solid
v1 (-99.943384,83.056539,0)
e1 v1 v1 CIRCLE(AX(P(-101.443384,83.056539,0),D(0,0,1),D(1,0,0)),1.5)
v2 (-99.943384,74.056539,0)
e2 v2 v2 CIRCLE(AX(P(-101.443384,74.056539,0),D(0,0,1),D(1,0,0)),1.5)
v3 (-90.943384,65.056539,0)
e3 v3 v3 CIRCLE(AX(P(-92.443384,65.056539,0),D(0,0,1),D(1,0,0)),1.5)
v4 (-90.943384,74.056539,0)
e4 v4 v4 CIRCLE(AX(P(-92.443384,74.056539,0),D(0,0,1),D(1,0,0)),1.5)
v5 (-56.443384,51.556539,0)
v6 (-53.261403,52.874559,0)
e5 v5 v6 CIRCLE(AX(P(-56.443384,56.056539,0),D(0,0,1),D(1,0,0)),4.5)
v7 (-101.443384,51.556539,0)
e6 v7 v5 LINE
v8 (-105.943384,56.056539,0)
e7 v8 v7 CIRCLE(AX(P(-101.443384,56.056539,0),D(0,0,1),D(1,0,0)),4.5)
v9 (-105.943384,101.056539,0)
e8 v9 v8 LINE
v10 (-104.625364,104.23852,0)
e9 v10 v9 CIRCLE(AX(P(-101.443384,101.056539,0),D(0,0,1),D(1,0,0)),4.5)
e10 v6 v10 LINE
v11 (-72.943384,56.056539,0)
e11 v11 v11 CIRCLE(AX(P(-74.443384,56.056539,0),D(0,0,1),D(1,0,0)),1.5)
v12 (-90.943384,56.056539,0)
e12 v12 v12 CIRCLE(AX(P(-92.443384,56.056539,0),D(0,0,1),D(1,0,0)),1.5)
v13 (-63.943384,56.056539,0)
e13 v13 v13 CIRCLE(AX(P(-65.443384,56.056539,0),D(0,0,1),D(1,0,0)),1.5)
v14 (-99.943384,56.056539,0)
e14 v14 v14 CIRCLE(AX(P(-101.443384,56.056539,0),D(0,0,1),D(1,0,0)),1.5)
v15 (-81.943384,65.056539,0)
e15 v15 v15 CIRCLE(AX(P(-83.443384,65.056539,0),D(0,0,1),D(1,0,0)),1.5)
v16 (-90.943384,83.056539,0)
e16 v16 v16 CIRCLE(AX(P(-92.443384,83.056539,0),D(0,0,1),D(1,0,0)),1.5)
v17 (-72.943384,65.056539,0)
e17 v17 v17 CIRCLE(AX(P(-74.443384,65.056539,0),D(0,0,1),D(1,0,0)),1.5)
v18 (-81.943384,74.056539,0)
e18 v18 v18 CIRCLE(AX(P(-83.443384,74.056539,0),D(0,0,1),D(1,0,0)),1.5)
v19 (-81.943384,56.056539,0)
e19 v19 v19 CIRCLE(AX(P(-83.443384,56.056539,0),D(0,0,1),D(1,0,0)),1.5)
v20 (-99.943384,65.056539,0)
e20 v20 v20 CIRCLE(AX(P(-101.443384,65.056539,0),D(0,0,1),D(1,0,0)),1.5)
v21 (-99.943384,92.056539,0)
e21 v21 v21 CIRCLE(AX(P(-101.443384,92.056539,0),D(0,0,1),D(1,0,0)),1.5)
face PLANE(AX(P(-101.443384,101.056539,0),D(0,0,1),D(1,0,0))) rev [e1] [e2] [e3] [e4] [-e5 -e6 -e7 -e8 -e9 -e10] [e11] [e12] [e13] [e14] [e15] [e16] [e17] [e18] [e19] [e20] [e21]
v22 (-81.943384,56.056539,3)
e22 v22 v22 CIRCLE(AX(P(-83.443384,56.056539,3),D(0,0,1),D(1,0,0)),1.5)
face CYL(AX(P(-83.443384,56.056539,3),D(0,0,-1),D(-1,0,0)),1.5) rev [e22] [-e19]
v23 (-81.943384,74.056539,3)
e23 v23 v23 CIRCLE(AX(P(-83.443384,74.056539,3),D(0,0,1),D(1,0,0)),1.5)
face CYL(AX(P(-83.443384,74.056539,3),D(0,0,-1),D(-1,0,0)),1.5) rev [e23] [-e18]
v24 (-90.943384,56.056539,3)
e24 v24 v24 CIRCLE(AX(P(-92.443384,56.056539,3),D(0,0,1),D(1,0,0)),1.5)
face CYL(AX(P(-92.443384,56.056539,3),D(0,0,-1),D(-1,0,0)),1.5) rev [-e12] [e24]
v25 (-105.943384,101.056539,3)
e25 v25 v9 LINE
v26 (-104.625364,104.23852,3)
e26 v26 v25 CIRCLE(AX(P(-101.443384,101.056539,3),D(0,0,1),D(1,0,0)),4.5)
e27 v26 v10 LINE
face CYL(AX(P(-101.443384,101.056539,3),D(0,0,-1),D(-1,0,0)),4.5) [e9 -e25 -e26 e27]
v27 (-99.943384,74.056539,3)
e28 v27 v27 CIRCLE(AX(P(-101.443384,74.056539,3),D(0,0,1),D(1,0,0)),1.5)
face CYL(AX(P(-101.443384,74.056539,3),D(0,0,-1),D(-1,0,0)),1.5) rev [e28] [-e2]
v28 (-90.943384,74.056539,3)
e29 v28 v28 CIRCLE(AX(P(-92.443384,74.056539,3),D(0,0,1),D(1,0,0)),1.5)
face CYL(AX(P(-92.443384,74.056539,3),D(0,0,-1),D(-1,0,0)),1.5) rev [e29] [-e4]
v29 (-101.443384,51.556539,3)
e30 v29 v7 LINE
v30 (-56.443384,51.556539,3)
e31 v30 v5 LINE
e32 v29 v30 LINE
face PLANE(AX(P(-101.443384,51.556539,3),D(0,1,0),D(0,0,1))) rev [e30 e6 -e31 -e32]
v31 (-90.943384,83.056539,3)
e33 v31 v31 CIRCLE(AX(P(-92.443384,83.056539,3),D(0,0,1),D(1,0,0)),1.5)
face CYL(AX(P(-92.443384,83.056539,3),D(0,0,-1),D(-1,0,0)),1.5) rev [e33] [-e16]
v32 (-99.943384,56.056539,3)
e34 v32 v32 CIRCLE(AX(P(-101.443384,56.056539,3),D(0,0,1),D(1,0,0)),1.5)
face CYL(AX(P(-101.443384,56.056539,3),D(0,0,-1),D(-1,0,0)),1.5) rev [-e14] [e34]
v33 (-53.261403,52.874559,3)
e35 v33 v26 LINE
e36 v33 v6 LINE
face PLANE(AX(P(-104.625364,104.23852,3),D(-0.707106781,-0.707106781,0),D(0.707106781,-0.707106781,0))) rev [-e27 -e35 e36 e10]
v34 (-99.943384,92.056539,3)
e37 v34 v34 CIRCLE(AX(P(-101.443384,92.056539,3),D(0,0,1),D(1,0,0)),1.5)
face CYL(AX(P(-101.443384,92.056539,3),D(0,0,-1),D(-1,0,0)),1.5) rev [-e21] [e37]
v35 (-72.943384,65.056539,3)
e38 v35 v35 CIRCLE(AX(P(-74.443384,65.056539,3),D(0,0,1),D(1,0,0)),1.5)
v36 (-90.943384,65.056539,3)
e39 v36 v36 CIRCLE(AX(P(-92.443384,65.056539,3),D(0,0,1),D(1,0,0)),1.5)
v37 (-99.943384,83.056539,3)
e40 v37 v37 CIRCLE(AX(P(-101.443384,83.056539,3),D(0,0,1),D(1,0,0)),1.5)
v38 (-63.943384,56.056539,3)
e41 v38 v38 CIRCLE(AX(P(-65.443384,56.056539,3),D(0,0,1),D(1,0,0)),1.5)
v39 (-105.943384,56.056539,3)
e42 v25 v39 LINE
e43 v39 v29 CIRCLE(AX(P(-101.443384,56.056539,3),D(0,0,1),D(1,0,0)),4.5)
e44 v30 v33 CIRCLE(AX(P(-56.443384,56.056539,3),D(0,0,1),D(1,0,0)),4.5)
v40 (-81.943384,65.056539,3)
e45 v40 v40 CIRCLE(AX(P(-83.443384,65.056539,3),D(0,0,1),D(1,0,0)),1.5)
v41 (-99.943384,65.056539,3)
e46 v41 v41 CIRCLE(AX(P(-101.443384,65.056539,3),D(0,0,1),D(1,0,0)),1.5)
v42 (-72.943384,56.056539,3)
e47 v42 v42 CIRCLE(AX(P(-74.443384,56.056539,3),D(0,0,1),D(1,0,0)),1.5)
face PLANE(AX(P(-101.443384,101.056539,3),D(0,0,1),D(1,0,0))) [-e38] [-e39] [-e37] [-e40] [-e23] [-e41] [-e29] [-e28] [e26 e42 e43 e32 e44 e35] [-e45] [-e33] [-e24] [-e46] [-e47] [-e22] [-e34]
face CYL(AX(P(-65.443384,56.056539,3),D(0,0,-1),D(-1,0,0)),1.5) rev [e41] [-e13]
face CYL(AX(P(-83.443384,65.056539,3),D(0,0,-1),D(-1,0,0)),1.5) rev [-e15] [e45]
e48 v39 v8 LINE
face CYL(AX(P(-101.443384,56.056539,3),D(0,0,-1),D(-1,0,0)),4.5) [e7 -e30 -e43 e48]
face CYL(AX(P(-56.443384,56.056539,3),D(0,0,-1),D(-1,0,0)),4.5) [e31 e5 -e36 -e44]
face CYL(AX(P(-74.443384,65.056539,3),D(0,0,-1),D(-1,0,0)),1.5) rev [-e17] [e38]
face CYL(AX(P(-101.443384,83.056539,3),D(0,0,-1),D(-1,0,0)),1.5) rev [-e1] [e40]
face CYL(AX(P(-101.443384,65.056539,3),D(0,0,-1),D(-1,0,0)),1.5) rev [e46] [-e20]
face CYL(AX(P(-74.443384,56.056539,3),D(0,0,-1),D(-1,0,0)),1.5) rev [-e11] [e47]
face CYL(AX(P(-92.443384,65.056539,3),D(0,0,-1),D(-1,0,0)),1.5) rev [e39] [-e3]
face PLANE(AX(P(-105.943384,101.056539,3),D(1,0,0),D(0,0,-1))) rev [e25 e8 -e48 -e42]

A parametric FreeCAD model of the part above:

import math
import FreeCAD as App
import Part
import Sketcher

V = App.Vector
Q = App.Units.Quantity

doc = App.newDocument("Part")
body = doc.addObject("PartDesign::Body", "Body")

sketch1 = body.newObject("Sketcher::SketchObject", "Sketch")
sketch1.AttachmentSupport = (doc.getObject("XY_Plane"), [""])
sketch1.MapMode = "FlatFace"
sketch1.addGeometry(Part.LineSegment(V(-105.9, 101.1, 0), V(-105.9, 56.1, 0)), False)
sketch1.addGeometry(Part.ArcOfCircle(Part.Circle(V(-101.4, 56.1, 0), V(0, 0, 1), 4.5), math.radians(-180), math.radians(-90)), False)
sketch1.addGeometry(Part.LineSegment(V(-101.4, 51.6, 0), V(-56.4, 51.6, 0)), False)
sketch1.addGeometry(Part.ArcOfCircle(Part.Circle(V(-56.4, 56.1, 0), V(0, 0, 1), 4.5), math.radians(-90), math.radians(-45)), False)
sketch1.addGeometry(Part.LineSegment(V(-53.3, 52.9, 0), V(-104.6, 104.2, 0)), False)
sketch1.addGeometry(Part.ArcOfCircle(Part.Circle(V(-101.4, 101.1, 0), V(0, 0, 1), 4.5), math.radians(135), math.radians(180)), False)
sketch1.addGeometry(Part.Circle(V(-101.4, 56.1, 0), V(0, 0, 1), 1.5), False)
sketch1.addGeometry(Part.Circle(V(-92.4, 56.1, 0), V(0, 0, 1), 1.5), False)
sketch1.addGeometry(Part.Circle(V(-101.4, 65.1, 0), V(0, 0, 1), 1.5), False)
sketch1.addGeometry(Part.Circle(V(-101.4, 74.1, 0), V(0, 0, 1), 1.5), False)
sketch1.addGeometry(Part.Circle(V(-92.4, 65.1, 0), V(0, 0, 1), 1.5), False)
sketch1.addGeometry(Part.Circle(V(-92.4, 74.1, 0), V(0, 0, 1), 1.5), False)
sketch1.addGeometry(Part.Circle(V(-83.4, 56.1, 0), V(0, 0, 1), 1.5), False)
sketch1.addGeometry(Part.Circle(V(-74.4, 56.1, 0), V(0, 0, 1), 1.5), False)
sketch1.addGeometry(Part.Circle(V(-65.4, 56.1, 0), V(0, 0, 1), 1.5), False)
sketch1.addGeometry(Part.Circle(V(-83.4, 65.1, 0), V(0, 0, 1), 1.5), False)
sketch1.addGeometry(Part.Circle(V(-74.4, 65.1, 0), V(0, 0, 1), 1.5), False)
sketch1.addGeometry(Part.Circle(V(-83.4, 74.1, 0), V(0, 0, 1), 1.5), False)
sketch1.addGeometry(Part.Circle(V(-101.4, 83.1, 0), V(0, 0, 1), 1.5), False)
sketch1.addGeometry(Part.Circle(V(-92.4, 83.1, 0), V(0, 0, 1), 1.5), False)
sketch1.addGeometry(Part.Circle(V(-101.4, 92.1, 0), V(0, 0, 1), 1.5), False)
sketch1.addConstraint(Sketcher.Constraint("Tangent", 0, 2, 1, 1))
sketch1.addConstraint(Sketcher.Constraint("Tangent", 1, 2, 2, 1))
sketch1.addConstraint(Sketcher.Constraint("Tangent", 2, 2, 3, 1))
sketch1.addConstraint(Sketcher.Constraint("Coincident", 3, 2, 4, 1))
sketch1.addConstraint(Sketcher.Constraint("Coincident", 4, 2, 5, 1))
sketch1.addConstraint(Sketcher.Constraint("Tangent", 5, 2, 0, 1))
sketch1.addConstraint(Sketcher.Constraint("Vertical", 0))
sketch1.addConstraint(Sketcher.Constraint("Horizontal", 2))
sketch1.addConstraint(Sketcher.Constraint("Coincident", 6, 3, 1, 3))
sketch1.addConstraint(Sketcher.Constraint("Equal", 1, 3))
sketch1.addConstraint(Sketcher.Constraint("Equal", 3, 5))
sketch1.addConstraint(Sketcher.Constraint("Equal", 6, 7))
sketch1.addConstraint(Sketcher.Constraint("Equal", 7, 8))
sketch1.addConstraint(Sketcher.Constraint("Equal", 8, 9))
sketch1.addConstraint(Sketcher.Constraint("Equal", 9, 10))
sketch1.addConstraint(Sketcher.Constraint("Equal", 10, 11))
sketch1.addConstraint(Sketcher.Constraint("Equal", 11, 12))
sketch1.addConstraint(Sketcher.Constraint("Equal", 12, 13))
sketch1.addConstraint(Sketcher.Constraint("Equal", 13, 14))
sketch1.addConstraint(Sketcher.Constraint("Equal", 14, 15))
sketch1.addConstraint(Sketcher.Constraint("Equal", 15, 16))
sketch1.addConstraint(Sketcher.Constraint("Equal", 16, 17))
sketch1.addConstraint(Sketcher.Constraint("Equal", 17, 18))
sketch1.addConstraint(Sketcher.Constraint("Equal", 18, 19))
sketch1.addConstraint(Sketcher.Constraint("Equal", 19, 20))
sketch1.addConstraint(Sketcher.Constraint("Horizontal", 6, 3, 7, 3))
sketch1.addConstraint(Sketcher.Constraint("Horizontal", 8, 3, 10, 3))
sketch1.addConstraint(Sketcher.Constraint("Horizontal", 9, 3, 11, 3))
sketch1.addConstraint(Sketcher.Constraint("Horizontal", 7, 3, 12, 3))
sketch1.addConstraint(Sketcher.Constraint("Horizontal", 12, 3, 13, 3))
sketch1.addConstraint(Sketcher.Constraint("Horizontal", 13, 3, 14, 3))
sketch1.addConstraint(Sketcher.Constraint("Horizontal", 10, 3, 15, 3))
sketch1.addConstraint(Sketcher.Constraint("Horizontal", 15, 3, 16, 3))
sketch1.addConstraint(Sketcher.Constraint("Horizontal", 11, 3, 17, 3))
sketch1.addConstraint(Sketcher.Constraint("Horizontal", 18, 3, 19, 3))
sketch1.addConstraint(Sketcher.Constraint("Vertical", 6, 3, 8, 3))
sketch1.addConstraint(Sketcher.Constraint("Vertical", 8, 3, 9, 3))
sketch1.addConstraint(Sketcher.Constraint("Vertical", 7, 3, 10, 3))
sketch1.addConstraint(Sketcher.Constraint("Vertical", 10, 3, 11, 3))
sketch1.addConstraint(Sketcher.Constraint("Vertical", 12, 3, 15, 3))
sketch1.addConstraint(Sketcher.Constraint("Vertical", 13, 3, 16, 3))
sketch1.addConstraint(Sketcher.Constraint("Vertical", 15, 3, 17, 3))
sketch1.addConstraint(Sketcher.Constraint("Vertical", 9, 3, 18, 3))
sketch1.addConstraint(Sketcher.Constraint("Vertical", 11, 3, 19, 3))
sketch1.addConstraint(Sketcher.Constraint("Vertical", 18, 3, 20, 3))
sketch1.addConstraint(Sketcher.Constraint("Equal", 2, 0))
sketch1.addConstraint(Sketcher.Constraint("Diameter", 6, Q("3 mm")))
sketch1.addConstraint(Sketcher.Constraint("Radius", 1, Q("4.5 mm")))
sketch1.addConstraint(Sketcher.Constraint("DistanceX", 2, 1, 2, 2, Q("45 mm")))
sketch1.addConstraint(Sketcher.Constraint("Angle", 4, Q("135 deg")))
sketch1.addConstraint(Sketcher.Constraint("DistanceX", 1, 3, 7, 3, Q("9 mm")))
sketch1.addConstraint(Sketcher.Constraint("DistanceY", 1, 3, 8, 3, Q("9 mm")))
sketch1.addConstraint(Sketcher.Constraint("DistanceY", 8, 3, 9, 3, Q("9 mm")))
sketch1.addConstraint(Sketcher.Constraint("DistanceX", 7, 3, 12, 3, Q("9 mm")))
sketch1.addConstraint(Sketcher.Constraint("DistanceX", 12, 3, 13, 3, Q("9 mm")))
sketch1.addConstraint(Sketcher.Constraint("DistanceX", 14, 3, 3, 3, Q("9 mm")))
sketch1.addConstraint(Sketcher.Constraint("DistanceY", 9, 3, 18, 3, Q("9 mm")))
sketch1.addConstraint(Sketcher.Constraint("DistanceY", 20, 3, 5, 3, Q("9 mm")))
sketch1.addConstraint(Sketcher.Constraint("DistanceY", -1, 1, 1, 3, Q("56.056539 mm")))
sketch1.addConstraint(Sketcher.Constraint("DistanceY", -1, 1, 3, 2, Q("52.874559 mm")))
sketch1.addConstraint(Sketcher.Constraint("DistanceX", 1, 3, -1, 1, Q("101.443384 mm")))
pad1 = body.newObject("PartDesign::Pad", "Pad")
pad1.Profile = sketch1
pad1.Length = 3

doc.recompute()
